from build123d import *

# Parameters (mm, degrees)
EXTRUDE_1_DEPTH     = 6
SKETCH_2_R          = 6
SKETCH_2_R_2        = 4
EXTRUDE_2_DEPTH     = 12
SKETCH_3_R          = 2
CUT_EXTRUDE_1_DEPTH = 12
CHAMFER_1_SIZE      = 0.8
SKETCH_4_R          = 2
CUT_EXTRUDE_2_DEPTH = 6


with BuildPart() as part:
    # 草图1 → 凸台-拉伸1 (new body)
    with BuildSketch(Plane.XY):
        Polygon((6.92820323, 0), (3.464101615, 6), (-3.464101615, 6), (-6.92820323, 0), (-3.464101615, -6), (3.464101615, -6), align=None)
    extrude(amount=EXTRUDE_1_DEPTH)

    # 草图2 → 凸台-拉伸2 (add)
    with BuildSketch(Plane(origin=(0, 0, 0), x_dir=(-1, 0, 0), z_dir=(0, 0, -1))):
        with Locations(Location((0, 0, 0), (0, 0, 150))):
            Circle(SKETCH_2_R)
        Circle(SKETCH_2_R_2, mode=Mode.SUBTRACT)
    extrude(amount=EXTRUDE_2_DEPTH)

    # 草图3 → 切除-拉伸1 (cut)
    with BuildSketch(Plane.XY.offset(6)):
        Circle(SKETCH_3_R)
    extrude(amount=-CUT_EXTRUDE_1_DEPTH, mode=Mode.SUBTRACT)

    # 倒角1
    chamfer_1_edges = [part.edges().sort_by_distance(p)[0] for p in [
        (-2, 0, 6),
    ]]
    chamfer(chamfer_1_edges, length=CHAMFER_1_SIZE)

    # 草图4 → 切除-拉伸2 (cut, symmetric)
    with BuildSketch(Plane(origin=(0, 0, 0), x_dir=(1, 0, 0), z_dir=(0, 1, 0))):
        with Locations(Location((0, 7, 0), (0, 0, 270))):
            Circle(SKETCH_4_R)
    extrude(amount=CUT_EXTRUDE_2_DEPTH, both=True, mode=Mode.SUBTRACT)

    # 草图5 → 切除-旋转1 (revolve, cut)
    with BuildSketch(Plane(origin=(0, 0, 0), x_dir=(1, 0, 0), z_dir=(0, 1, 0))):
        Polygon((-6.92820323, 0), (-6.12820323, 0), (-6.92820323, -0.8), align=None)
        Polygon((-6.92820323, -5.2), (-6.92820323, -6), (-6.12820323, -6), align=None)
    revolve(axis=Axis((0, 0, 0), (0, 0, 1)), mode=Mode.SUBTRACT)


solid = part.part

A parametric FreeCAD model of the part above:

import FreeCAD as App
import Part
import Sketcher
Q = App.Units.Quantity


def edges_at(feature, points):
    """Names of the edges that pass closest to the given points."""
    edges = feature.Shape.Edges
    near = lambda p: min(range(len(edges)), key=lambda i: edges[i].distToShape(Part.Vertex(*p))[0])
    return sorted({f"Edge{near(p) + 1}" for p in points})

doc = App.newDocument("Part")
body = doc.addObject("PartDesign::Body", "Body")

# Sketch on XY plane
sketch1 = body.newObject("Sketcher::SketchObject", "Sketch")
sketch1.AttachmentSupport = (doc.getObject("XY_Plane"), [""])
sketch1.MapMode = "FlatFace"
sketch1.addGeometry([
    Part.LineSegment(App.Vector(6.928203, 0, 0), App.Vector(3.464102, 6, 0)),  # 0
    Part.LineSegment(App.Vector(3.464102, 6, 0), App.Vector(-3.464102, 6, 0)),  # 1
    Part.LineSegment(App.Vector(-3.464102, 6, 0), App.Vector(-6.928203, 0, 0)),  # 2
    Part.LineSegment(App.Vector(-6.928203, 0, 0), App.Vector(-3.464102, -6, 0)),  # 3
    Part.LineSegment(App.Vector(-3.464102, -6, 0), App.Vector(3.464102, -6, 0)),  # 4
    Part.LineSegment(App.Vector(3.464102, -6, 0), App.Vector(6.928203, 0, 0)),  # 5
], False)
sketch1.addConstraint([
    Sketcher.Constraint("Coincident", 0, 2, 1, 1),
    Sketcher.Constraint("Coincident", 1, 2, 2, 1),
    Sketcher.Constraint("Coincident", 2, 2, 3, 1),
    Sketcher.Constraint("Coincident", 3, 2, 4, 1),
    Sketcher.Constraint("Coincident", 4, 2, 5, 1),
    Sketcher.Constraint("Coincident", 5, 2, 0, 1),
    Sketcher.Constraint("Horizontal", 1),
    Sketcher.Constraint("Horizontal", 4),
    Sketcher.Constraint("Symmetric", 0, 2, 3, 2, -1, 1),
    Sketcher.Constraint("Symmetric", 2, 2, 5, 2, -1, 1),
    Sketcher.Constraint("PointOnObject", 2, 2, -1),
    Sketcher.Constraint("Parallel", 2, 5),
    Sketcher.Constraint("Vertical", 1, 2, 3, 2),
    Sketcher.Constraint("Angle", 0, Q("120 deg")),
    Sketcher.Constraint("DistanceY", -1, 1, 0, 2, Q("6 mm")),
    Sketcher.Constraint("DistanceX", -1, 1, 0, 2, Q("3.464102 mm")),
])
pad1 = body.newObject("PartDesign::Pad", "Pad")
pad1.Profile = sketch1
pad1.Length = 6

# Sketch on XY plane
sketch2 = body.newObject("Sketcher::SketchObject", "Sketch001")
sketch2.AttachmentSupport = (doc.getObject("XY_Plane"), [""])
sketch2.MapMode = "FlatFace"
sketch2.addGeometry([
    Part.Circle(App.Vector(0, 0, 0), App.Vector(0, 0, 1), 6),
    Part.Circle(App.Vector(0, 0, 0), App.Vector(0, 0, 1), 4),
], False)
sketch2.addConstraint([
    Sketcher.Constraint("Coincident", 0, 3, -1, 1),
    Sketcher.Constraint("Coincident", 1, 3, -1, 1),
    Sketcher.Constraint("Diameter", 0, Q("12 mm")),
    Sketcher.Constraint("Diameter", 1, Q("8 mm")),
])
pad2 = body.newObject("PartDesign::Pad", "Pad001")
pad2.Profile = sketch2
pad2.Length = 12
pad2.Reversed = True

# Sketch on XY plane
sketch3 = body.newObject("Sketcher::SketchObject", "Sketch002")
sketch3.AttachmentSupport = (doc.getObject("XY_Plane"), [""])
sketch3.MapMode = "FlatFace"
sketch3.AttachmentOffset = App.Placement(App.Vector(0, 0, 6), App.Rotation())
sketch3.addGeometry(Part.Circle(App.Vector(0, 0, 0), App.Vector(0, 0, 1), 2), False)
sketch3.addConstraint([
    Sketcher.Constraint("Coincident", 0, 3, -1, 1),
    Sketcher.Constraint("Diameter", 0, Q("4 mm")),
])
pocket1 = body.newObject("PartDesign::Pocket", "Pocket")
pocket1.Profile = sketch3
pocket1.Length = 12
doc.recompute()

chamfer = body.newObject("PartDesign::Chamfer", "Chamfer")
chamfer.Base = (pocket1, edges_at(pocket1, [(-2, 0, 6)]))
chamfer.Size = 0.8

# Sketch on XZ plane
sketch4 = body.newObject("Sketcher::SketchObject", "Sketch003")
sketch4.AttachmentSupport = (doc.getObject("XZ_Plane"), [""])
sketch4.MapMode = "FlatFace"
sketch4.addGeometry(Part.Circle(App.Vector(0, -7, 0), App.Vector(0, 0, 1), 2), False)
sketch4.addConstraint([
    Sketcher.Constraint("PointOnObject", 0, 3, -2),
    Sketcher.Constraint("Diameter", 0, Q("4 mm")),
    Sketcher.Constraint("DistanceY", 0, 3, -1, 1, Q("7 mm")),
])
pocket2 = body.newObject("PartDesign::Pocket", "Pocket001")
pocket2.Profile = sketch4
pocket2.Length = 12
pocket2.Midplane = True

# Sketch on XZ plane
sketch5 = body.newObject("Sketcher::SketchObject", "Sketch004")
sketch5.AttachmentSupport = (doc.getObject("XZ_Plane"), [""])
sketch5.MapMode = "FlatFace"
sketch5.addGeometry([
    Part.LineSegment(App.Vector(-6.128203, 0, 0), App.Vector(-6.928203, 0, 0)),  # 0
    Part.LineSegment(App.Vector(-6.928203, 0, 0), App.Vector(-6.928203, 0.8, 0)),  # 1
    Part.LineSegment(App.Vector(-6.928203, 0.8, 0), App.Vector(-6.128203, 0, 0)),  # 2
    Part.LineSegment(App.Vector(-6.928203, 5.2, 0), App.Vector(-6.928203, 6, 0)),  # 3
    Part.LineSegment(App.Vector(-6.928203, 6, 0), App.Vector(-6.128203, 6, 0)),  # 4
    Part.LineSegment(App.Vector(-6.128203, 6, 0), App.Vector(-6.928203, 5.2, 0)),  # 5
], False)
sketch5.addConstraint([
    Sketcher.Constraint("Coincident", 0, 2, 1, 1),
    Sketcher.Constraint("Coincident", 1, 2, 2, 1),
    Sketcher.Constraint("Coincident", 2, 2, 0, 1),
    Sketcher.Constraint("Coincident", 3, 2, 4, 1),
    Sketcher.Constraint("Coincident", 4, 2, 5, 1),
    Sketcher.Constraint("Coincident", 5, 2, 3, 1),
    Sketcher.Constraint("Horizontal", 0),
    Sketcher.Constraint("Vertical", 1),
    Sketcher.Constraint("Vertical", 3),
    Sketcher.Constraint("Horizontal", 4),
    Sketcher.Constraint("PointOnObject", 0, 2, -1),
    Sketcher.Constraint("Perpendicular", 2, 5),
    Sketcher.Constraint("Vertical", 1, 2, 3, 2),
    Sketcher.Constraint("Vertical", 2, 2, 4, 2),
    Sketcher.Constraint("Equal", 4, 1),
    Sketcher.Constraint("DistanceX", 0, 2, 0, 1, Q("0.8 mm")),
    Sketcher.Constraint("DistanceY", -1, 1, 3, 2, Q("6 mm")),
    Sketcher.Constraint("DistanceX", 0, 2, -1, 1, Q("6.928203 mm")),
])
groove = body.newObject("PartDesign::Groove", "Groove")
groove.Profile = sketch5
groove.ReferenceAxis = (sketch5, ["V_Axis"])
groove.Angle = 360

doc.recompute()
